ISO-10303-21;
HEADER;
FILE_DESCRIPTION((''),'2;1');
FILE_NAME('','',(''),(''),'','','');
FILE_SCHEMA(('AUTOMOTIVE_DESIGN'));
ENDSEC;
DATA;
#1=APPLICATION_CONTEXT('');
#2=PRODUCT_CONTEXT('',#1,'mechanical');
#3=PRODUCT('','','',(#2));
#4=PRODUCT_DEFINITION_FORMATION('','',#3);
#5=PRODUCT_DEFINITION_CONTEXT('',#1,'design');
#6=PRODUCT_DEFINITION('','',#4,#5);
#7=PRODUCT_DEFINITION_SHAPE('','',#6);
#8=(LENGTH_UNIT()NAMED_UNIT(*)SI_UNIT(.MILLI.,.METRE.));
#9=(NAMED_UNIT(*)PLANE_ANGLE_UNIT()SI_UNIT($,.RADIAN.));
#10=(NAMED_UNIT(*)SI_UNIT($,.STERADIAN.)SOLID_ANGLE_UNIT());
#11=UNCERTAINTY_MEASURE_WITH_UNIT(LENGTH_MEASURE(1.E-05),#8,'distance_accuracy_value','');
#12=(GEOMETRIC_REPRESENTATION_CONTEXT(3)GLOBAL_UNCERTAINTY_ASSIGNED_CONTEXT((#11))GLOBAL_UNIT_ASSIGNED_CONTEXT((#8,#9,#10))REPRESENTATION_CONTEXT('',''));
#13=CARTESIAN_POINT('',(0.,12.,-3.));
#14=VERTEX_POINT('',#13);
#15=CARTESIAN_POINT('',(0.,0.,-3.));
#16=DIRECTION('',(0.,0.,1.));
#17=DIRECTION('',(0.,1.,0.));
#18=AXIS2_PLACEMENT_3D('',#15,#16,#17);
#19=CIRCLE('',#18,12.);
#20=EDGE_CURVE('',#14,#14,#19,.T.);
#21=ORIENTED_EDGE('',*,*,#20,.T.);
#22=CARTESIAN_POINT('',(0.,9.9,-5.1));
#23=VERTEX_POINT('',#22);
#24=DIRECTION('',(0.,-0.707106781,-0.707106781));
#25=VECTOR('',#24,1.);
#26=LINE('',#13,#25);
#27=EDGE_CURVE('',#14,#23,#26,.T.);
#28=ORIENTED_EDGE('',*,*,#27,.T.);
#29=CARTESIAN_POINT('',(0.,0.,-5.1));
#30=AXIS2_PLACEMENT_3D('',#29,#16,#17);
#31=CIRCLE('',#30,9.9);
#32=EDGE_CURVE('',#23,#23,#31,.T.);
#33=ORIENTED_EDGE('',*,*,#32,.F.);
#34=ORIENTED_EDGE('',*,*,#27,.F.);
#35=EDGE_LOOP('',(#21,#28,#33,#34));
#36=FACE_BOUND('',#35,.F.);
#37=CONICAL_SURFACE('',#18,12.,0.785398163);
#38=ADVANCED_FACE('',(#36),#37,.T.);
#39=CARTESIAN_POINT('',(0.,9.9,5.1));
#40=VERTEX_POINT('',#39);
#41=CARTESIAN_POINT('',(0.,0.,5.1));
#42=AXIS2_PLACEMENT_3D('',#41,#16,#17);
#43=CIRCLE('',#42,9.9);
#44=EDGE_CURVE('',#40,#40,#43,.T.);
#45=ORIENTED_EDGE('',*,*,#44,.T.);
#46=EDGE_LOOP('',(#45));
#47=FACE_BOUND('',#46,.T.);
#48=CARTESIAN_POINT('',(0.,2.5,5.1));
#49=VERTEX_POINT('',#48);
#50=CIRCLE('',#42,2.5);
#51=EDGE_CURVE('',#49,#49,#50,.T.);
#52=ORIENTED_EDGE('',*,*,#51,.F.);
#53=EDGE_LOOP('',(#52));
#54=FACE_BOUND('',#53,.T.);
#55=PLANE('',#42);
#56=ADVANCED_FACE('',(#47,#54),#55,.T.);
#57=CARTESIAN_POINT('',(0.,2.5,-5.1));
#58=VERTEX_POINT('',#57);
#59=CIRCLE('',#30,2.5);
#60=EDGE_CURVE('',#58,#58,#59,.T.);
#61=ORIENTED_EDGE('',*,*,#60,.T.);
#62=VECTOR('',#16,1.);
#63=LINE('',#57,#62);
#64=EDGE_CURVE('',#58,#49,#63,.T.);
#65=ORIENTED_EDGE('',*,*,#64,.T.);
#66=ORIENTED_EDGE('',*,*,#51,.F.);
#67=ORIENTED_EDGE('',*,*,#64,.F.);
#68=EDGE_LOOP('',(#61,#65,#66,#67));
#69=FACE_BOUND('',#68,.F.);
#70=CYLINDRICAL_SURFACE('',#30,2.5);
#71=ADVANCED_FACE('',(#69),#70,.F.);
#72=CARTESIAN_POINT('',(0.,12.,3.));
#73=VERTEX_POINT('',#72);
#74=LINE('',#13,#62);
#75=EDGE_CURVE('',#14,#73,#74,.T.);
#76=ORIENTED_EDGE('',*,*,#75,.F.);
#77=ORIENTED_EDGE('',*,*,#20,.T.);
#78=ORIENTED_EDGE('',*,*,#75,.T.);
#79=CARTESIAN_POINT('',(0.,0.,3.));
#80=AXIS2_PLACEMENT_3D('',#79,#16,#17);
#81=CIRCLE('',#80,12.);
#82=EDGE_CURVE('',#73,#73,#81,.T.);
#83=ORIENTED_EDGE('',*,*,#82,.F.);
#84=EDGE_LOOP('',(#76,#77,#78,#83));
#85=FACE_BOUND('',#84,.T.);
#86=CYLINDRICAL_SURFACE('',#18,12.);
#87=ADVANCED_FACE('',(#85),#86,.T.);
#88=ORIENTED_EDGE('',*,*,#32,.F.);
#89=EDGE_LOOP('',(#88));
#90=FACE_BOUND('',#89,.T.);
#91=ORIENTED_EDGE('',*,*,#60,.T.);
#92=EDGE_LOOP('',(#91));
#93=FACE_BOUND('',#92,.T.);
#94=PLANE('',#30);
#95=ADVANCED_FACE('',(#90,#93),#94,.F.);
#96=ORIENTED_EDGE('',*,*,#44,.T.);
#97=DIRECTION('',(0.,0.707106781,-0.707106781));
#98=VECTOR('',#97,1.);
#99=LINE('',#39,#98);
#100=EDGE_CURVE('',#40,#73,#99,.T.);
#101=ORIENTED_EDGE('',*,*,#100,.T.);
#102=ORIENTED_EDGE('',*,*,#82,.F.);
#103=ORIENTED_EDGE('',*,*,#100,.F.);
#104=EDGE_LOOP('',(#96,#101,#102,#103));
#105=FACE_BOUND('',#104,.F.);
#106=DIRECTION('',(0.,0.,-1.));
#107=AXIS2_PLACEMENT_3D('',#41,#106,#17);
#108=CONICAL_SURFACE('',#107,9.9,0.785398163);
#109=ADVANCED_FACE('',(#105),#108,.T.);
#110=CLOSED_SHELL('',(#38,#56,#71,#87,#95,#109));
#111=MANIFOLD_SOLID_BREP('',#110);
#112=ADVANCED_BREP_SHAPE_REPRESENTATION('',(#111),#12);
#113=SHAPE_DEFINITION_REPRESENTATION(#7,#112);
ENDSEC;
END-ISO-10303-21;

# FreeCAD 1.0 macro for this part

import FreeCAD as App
import Part
import Sketcher
from FreeCAD import Vector
Q = App.Units.Quantity

doc = App.newDocument("Part")
params = doc.addObject("Spreadsheet::Sheet", "Params")
for row, (alias, value) in enumerate([
    ("sketch1_height", "6 mm"),
    ("sketch1_height2", "10.2 mm"),
    ("sketch1_width", "7.4 mm"),
    ("revolution_angle", "360 deg"),
], start=1):
    params.set(f"A{row}", alias)
    params.set(f"B{row}", "=" + value)
    params.setAlias(f"B{row}", alias)

body = doc.addObject("PartDesign::Body", "Body")

sketch1 = doc.addObject("Sketcher::SketchObject", "Sketch")
body.addObject(sketch1)
sketch1.AttachmentSupport = (doc.YZ_Plane, [""])
sketch1.MapMode = "FlatFace"
sketch1.addGeometry([
    Part.LineSegment(Vector(9.9, -5.1, 0), Vector(12, -3, 0)),
    Part.LineSegment(Vector(12, -3, 0), Vector(12, 3, 0)),
    Part.LineSegment(Vector(12, 3, 0), Vector(9.9, 5.1, 0)),
    Part.LineSegment(Vector(9.9, 5.1, 0), Vector(2.5, 5.1, 0)),
    Part.LineSegment(Vector(2.5, 5.1, 0), Vector(2.5, -5.1, 0)),
    Part.LineSegment(Vector(2.5, -5.1, 0), Vector(9.9, -5.1, 0)),
], False)
sketch1.addConstraint([
    Sketcher.Constraint("Coincident", 0, 2, 1, 1),
    Sketcher.Constraint("Coincident", 1, 2, 2, 1),
    Sketcher.Constraint("Coincident", 2, 2, 3, 1),
    Sketcher.Constraint("Coincident", 3, 2, 4, 1),
    Sketcher.Constraint("Coincident", 4, 2, 5, 1),
    Sketcher.Constraint("Coincident", 5, 2, 0, 1),
    Sketcher.Constraint("Vertical", 1),
    Sketcher.Constraint("Horizontal", 3),
    Sketcher.Constraint("Vertical", 4),
    Sketcher.Constraint("Horizontal", 5),
    Sketcher.Constraint("Symmetric", 2, 2, 5, 2, -1),
    Sketcher.Constraint("Perpendicular", 0, 2),
    Sketcher.Constraint("Equal", 0, 2),
    Sketcher.Constraint("DistanceY", 1, 1, 1, 2, Q("6 mm")),
    Sketcher.Constraint("DistanceY", 4, 2, 4, 1, Q("10.2 mm")),
    Sketcher.Constraint("DistanceX", 3, 2, 3, 1, Q("7.4 mm")),
    Sketcher.Constraint("DistanceX", -1, 1, 0, 2, Q("12 mm")),
])
sketch1.setExpression("Constraints[13]", "Params.sketch1_height")
sketch1.setExpression("Constraints[14]", "Params.sketch1_height2")
sketch1.setExpression("Constraints[15]", "Params.sketch1_width")
revolution = doc.addObject("PartDesign::Revolution", "Revolution")
body.addObject(revolution)
revolution.Profile = sketch1
revolution.ReferenceAxis = (sketch1, ["V_Axis"])
revolution.setExpression("Angle", "Params.revolution_angle")

doc.recompute()
